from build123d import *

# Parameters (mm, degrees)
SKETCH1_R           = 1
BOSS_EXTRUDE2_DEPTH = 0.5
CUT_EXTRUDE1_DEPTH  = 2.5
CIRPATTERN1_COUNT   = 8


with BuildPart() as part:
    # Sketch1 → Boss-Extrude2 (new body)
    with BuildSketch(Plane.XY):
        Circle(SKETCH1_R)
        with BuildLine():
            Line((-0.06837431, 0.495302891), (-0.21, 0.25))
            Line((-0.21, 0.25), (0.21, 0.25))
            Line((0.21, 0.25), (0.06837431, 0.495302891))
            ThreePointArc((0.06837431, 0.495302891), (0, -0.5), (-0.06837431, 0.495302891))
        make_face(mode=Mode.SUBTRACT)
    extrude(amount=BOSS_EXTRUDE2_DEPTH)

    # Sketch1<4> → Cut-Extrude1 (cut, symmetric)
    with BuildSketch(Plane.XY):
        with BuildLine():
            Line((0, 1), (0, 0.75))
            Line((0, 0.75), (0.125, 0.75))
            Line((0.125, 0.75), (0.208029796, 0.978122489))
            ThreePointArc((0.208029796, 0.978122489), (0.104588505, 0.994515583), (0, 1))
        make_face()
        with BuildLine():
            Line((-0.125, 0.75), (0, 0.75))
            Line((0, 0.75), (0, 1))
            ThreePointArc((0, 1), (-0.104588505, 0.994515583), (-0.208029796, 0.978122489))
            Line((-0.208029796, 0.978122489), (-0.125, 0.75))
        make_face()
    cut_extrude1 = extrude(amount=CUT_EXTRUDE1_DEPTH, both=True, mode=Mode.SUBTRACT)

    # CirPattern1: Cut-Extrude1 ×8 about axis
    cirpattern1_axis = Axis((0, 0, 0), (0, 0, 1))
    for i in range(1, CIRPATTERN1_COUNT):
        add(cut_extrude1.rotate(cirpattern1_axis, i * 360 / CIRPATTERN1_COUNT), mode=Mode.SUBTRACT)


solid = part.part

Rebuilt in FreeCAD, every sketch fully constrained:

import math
import FreeCAD as App
import Part
import Sketcher

V = App.Vector
Q = App.Units.Quantity

doc = App.newDocument("Part")
params = doc.addObject("Spreadsheet::Sheet", "Params")
for row, (alias, value) in enumerate([
    ("sketch1_diameter", "2 mm"),
    ("sketch1_radius", "0.5 mm"),
    ("sketch1_width", "0.42 mm"),
    ("pad1_length", "0.5 mm"),
    ("sketch2_radius", "1 mm"),
    ("sketch2_width", "0.25 mm"),
    ("pocket1_length", "5 mm"),
], start=1):
    params.set(f"A{row}", alias)
    params.set(f"B{row}", "=" + value)
    params.setAlias(f"B{row}", alias)

body = doc.addObject("PartDesign::Body", "Body")

# Sketch on XY plane
sketch1 = body.newObject("Sketcher::SketchObject", "Sketch")
sketch1.AttachmentSupport = (doc.getObject("XY_Plane"), [""])
sketch1.MapMode = "FlatFace"
sketch1.addGeometry([
    Part.Circle(V(0, 0, 0), V(0, 0, 1), 1),  # 0
    Part.ArcOfCircle(Part.Circle(V(0, 0, 0), V(0, 0, 1), 0.5), math.radians(98), math.radians(442)),  # 1
    Part.LineSegment(V(-0.07, 0.5, 0), V(-0.21, 0.25, 0)),  # 2
    Part.LineSegment(V(-0.21, 0.25, 0), V(0.21, 0.25, 0)),  # 3
    Part.LineSegment(V(0.21, 0.25, 0), V(0.07, 0.5, 0)),  # 4
], False)
sketch1.addConstraint([
    Sketcher.Constraint("Coincident", 1, 1, 2, 1),
    Sketcher.Constraint("Coincident", 2, 2, 3, 1),
    Sketcher.Constraint("Coincident", 3, 2, 4, 1),
    Sketcher.Constraint("Coincident", 4, 2, 1, 2),
    Sketcher.Constraint("Horizontal", 3),
    Sketcher.Constraint("Coincident", 0, 3, -1, 1),
    Sketcher.Constraint("Coincident", 1, 3, -1, 1),
    Sketcher.Constraint("Horizontal", 1, 1, 4, 2),
    Sketcher.Constraint("Equal", 2, 4),
    Sketcher.Constraint("Diameter", 0, 2.0),
    Sketcher.Constraint("Radius", 1, 0.5),
    Sketcher.Constraint("Angle", 2, Q("-120 deg")),
    Sketcher.Constraint("DistanceX", 3, 1, 3, 2, 0.42),
    Sketcher.Constraint("DistanceY", -1, 1, 2, 2, 0.25),
])
sketch1.setExpression("Constraints[9]", "Params.sketch1_diameter")
sketch1.setExpression("Constraints[10]", "Params.sketch1_radius")
sketch1.setExpression("Constraints[12]", "Params.sketch1_width")
pad1 = body.newObject("PartDesign::Pad", "Pad")
pad1.Profile = sketch1
pad1.setExpression("Length", "Params.pad1_length")

# Sketch on XY plane
sketch2 = body.newObject("Sketcher::SketchObject", "Sketch001")
sketch2.AttachmentSupport = (doc.getObject("XY_Plane"), [""])
sketch2.MapMode = "FlatFace"
sketch2.addGeometry([
    Part.LineSegment(V(0.12, 0.75, 0), V(0.21, 0.98, 0)),  # 0
    Part.ArcOfCircle(Part.Circle(V(0, 0, 0), V(0, 0, 1), 1), math.radians(77.99), math.radians(90)),  # 1
    Part.ArcOfCircle(Part.Circle(V(0, 0, 0), V(0, 0, 1), 1), math.radians(90), math.radians(102.01)),  # 2
    Part.LineSegment(V(-0.21, 0.98, 0), V(-0.12, 0.75, 0)),  # 3
    Part.LineSegment(V(-0.12, 0.75, 0), V(0.12, 0.75, 0)),  # 4
], False)
sketch2.addConstraint([
    Sketcher.Constraint("Coincident", 0, 2, 1, 1),
    Sketcher.Constraint("Tangent", 1, 2, 2, 1),
    Sketcher.Constraint("Coincident", 2, 2, 3, 1),
    Sketcher.Constraint("Coincident", 3, 2, 4, 1),
    Sketcher.Constraint("Coincident", 4, 2, 0, 1),
    Sketcher.Constraint("Horizontal", 4),
    Sketcher.Constraint("Coincident", 1, 3, -1, 1),
    Sketcher.Constraint("Equal", 1, 2),
    Sketcher.Constraint("PointOnObject", 1, 2, -2),
    Sketcher.Constraint("Horizontal", 0, 2, 2, 2),
    Sketcher.Constraint("Equal", 0, 3),
    Sketcher.Constraint("Radius", 1, 1.0),
    Sketcher.Constraint("Angle", 0, Q("70 deg")),
    Sketcher.Constraint("DistanceX", 4, 1, 4, 2, 0.25),
    Sketcher.Constraint("DistanceY", -1, 1, 3, 2, 0.75),
])
sketch2.setExpression("Constraints[11]", "Params.sketch2_radius")
sketch2.setExpression("Constraints[13]", "Params.sketch2_width")
pocket1 = body.newObject("PartDesign::Pocket", "Pocket")
pocket1.Profile = sketch2
pocket1.setExpression("Length", "Params.pocket1_length")
pocket1.Midplane = True
doc.recompute()

polarpattern = body.newObject("PartDesign::PolarPattern", "PolarPattern")
polarpattern.Originals = [pocket1]
polarpattern.Axis = (doc.getObject("Z_Axis"), [""])
polarpattern.Angle = 360
polarpattern.Occurrences = 8
body.Tip = polarpattern

doc.recompute()
